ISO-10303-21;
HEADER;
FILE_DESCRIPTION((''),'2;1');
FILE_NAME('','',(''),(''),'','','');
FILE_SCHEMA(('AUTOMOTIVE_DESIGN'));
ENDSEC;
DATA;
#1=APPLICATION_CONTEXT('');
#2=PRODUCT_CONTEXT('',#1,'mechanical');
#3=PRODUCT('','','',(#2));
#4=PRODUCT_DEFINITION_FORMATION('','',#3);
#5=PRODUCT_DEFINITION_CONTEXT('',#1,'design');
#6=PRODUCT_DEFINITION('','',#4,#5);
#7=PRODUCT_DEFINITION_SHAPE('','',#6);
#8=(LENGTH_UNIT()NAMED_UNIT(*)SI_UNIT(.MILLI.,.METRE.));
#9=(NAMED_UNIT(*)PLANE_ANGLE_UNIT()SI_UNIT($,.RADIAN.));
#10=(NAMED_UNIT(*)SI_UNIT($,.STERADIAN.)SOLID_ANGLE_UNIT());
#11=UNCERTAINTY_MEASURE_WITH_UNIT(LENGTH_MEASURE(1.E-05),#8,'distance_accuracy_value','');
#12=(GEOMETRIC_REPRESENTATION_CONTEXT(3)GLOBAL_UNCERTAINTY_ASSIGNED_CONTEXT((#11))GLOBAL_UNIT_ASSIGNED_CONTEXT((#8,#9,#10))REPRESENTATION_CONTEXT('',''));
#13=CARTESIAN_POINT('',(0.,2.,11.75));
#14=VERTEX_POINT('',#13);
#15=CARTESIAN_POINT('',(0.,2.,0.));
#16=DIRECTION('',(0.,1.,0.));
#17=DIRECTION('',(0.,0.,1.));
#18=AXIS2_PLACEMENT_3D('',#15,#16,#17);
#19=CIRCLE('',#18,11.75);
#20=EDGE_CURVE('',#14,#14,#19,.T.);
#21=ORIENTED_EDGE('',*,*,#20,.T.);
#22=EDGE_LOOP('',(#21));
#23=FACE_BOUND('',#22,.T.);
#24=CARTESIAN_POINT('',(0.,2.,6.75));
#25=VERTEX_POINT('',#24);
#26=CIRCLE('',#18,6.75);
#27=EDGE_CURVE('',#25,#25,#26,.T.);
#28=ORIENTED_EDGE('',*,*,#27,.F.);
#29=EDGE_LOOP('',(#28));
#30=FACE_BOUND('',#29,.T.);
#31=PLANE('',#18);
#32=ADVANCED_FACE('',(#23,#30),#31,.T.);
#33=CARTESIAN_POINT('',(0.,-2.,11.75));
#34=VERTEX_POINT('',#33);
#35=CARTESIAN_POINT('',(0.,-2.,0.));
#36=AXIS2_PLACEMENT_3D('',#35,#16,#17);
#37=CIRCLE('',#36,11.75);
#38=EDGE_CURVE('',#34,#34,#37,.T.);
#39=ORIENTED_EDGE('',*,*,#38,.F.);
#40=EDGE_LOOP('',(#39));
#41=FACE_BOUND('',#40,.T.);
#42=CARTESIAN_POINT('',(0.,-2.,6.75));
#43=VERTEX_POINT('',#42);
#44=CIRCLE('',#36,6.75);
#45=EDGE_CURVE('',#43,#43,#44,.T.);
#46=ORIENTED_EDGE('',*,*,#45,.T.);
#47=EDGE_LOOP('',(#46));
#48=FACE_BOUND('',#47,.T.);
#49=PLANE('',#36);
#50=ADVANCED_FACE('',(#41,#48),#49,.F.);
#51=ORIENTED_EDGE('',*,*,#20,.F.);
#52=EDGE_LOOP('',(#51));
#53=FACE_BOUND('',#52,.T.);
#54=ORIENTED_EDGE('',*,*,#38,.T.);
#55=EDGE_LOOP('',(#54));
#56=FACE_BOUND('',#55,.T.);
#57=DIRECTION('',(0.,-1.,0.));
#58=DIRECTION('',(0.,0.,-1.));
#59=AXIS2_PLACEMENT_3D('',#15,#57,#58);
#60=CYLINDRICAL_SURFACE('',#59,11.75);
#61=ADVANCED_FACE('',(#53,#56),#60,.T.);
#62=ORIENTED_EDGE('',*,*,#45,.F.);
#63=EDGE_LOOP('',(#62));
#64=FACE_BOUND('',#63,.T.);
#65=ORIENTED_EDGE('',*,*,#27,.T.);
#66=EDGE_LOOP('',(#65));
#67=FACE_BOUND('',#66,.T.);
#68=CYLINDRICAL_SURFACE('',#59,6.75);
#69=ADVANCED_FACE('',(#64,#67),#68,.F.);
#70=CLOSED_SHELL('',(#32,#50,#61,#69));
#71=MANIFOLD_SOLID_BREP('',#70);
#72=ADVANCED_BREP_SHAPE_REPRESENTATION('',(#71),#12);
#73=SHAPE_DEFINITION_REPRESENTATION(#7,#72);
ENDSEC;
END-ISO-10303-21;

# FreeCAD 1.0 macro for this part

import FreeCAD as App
import Part
import Sketcher

V = App.Vector

doc = App.newDocument("Part")
params = doc.addObject("Spreadsheet::Sheet", "Params")
for row, (alias, value) in enumerate([
    ("sketch1_diameter", "23.5 mm"),
    ("sketch1_diameter2", "13.5 mm"),
    ("pad1_length", "4 mm"),
], start=1):
    params.set(f"A{row}", alias)
    params.set(f"B{row}", "=" + value)
    params.setAlias(f"B{row}", alias)

body = doc.addObject("PartDesign::Body", "Body")

sketch1 = body.newObject("Sketcher::SketchObject", "Sketch")
sketch1.AttachmentSupport = (doc.getObject("XZ_Plane"), [""])
sketch1.MapMode = "FlatFace"
sketch1.addGeometry([
    Part.Circle(V(0, 0, 0), V(0, 0, 1), 12),
    Part.Circle(V(0, 0, 0), V(0, 0, 1), 7),
], False)
sketch1.addConstraint([
    Sketcher.Constraint("Coincident", 0, 3, -1, 1),
    Sketcher.Constraint("Coincident", 1, 3, -1, 1),
    Sketcher.Constraint("Diameter", 0, 23.5),
    Sketcher.Constraint("Diameter", 1, 13.5),
])
sketch1.setExpression("Constraints[2]", "Params.sketch1_diameter")
sketch1.setExpression("Constraints[3]", "Params.sketch1_diameter2")
pad1 = body.newObject("PartDesign::Pad", "Pad")
pad1.Profile = sketch1
pad1.setExpression("Length", "Params.pad1_length")
pad1.Midplane = True

doc.recompute()
